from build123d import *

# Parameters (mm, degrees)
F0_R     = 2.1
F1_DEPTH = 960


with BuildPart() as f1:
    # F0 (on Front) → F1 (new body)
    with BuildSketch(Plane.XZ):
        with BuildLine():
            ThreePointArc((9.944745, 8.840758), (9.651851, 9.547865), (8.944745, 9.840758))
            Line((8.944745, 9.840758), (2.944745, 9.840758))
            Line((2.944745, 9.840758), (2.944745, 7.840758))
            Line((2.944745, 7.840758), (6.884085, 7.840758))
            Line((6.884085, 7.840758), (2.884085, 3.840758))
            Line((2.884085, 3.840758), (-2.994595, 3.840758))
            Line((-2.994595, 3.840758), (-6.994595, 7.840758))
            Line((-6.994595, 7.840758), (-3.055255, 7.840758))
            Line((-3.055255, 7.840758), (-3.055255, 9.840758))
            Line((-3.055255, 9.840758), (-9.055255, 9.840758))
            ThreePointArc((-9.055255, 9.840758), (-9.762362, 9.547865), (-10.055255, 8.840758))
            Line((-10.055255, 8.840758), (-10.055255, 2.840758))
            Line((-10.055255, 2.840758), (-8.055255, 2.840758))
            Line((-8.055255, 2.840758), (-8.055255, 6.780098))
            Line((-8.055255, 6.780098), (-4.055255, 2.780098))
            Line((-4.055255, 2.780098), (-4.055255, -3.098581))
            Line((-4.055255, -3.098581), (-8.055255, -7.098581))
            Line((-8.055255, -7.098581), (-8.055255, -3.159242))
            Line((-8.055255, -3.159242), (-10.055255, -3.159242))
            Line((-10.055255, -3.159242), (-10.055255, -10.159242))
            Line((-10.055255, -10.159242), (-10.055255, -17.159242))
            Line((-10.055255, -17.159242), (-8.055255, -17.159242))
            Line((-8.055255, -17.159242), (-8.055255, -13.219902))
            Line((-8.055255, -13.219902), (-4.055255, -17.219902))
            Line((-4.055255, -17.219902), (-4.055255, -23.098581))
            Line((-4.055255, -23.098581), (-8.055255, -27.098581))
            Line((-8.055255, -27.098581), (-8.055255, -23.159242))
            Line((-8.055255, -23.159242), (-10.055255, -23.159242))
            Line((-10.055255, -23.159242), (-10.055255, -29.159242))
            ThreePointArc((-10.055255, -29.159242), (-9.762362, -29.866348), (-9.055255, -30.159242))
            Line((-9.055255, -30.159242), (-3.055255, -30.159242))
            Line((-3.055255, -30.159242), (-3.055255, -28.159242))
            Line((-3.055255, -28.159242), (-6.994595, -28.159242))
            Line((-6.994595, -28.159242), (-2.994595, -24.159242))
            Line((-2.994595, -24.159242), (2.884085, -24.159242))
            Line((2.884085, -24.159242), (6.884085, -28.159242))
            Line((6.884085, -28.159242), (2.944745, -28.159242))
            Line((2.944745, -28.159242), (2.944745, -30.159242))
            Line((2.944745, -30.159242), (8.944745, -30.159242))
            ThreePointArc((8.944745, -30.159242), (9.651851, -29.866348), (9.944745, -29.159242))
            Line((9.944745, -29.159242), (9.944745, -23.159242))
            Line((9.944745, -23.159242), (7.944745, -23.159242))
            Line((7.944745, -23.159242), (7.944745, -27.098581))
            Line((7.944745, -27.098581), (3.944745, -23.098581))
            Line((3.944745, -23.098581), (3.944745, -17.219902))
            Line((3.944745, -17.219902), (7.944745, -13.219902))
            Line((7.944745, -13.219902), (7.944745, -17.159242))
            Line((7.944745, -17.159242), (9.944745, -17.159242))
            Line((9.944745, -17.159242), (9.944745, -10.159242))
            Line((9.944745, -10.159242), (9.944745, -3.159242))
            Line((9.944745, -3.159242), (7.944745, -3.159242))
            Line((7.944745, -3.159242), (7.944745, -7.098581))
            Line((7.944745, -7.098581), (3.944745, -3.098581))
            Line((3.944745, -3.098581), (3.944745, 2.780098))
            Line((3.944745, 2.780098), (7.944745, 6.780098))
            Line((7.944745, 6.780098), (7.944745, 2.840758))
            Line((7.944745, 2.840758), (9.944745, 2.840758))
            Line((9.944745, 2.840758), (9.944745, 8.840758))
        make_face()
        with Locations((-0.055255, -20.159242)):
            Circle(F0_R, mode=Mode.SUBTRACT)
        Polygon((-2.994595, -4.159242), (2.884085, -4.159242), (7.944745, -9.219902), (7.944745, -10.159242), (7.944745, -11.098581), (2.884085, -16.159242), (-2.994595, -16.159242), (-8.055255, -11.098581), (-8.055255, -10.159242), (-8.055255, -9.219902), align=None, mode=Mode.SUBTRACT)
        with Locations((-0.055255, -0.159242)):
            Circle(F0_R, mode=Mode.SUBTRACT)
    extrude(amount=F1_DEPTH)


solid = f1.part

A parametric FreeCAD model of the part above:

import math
import FreeCAD as App
import Part
import Sketcher

doc = App.newDocument("Part")
body = doc.addObject("PartDesign::Body", "Body")

sketch1 = body.newObject("Sketcher::SketchObject", "Sketch")
sketch1.AttachmentSupport = (doc.getObject("XZ_Plane"), [""])
sketch1.MapMode = "FlatFace"
sketch1.addGeometry(Part.ArcOfCircle(Part.Circle(App.Vector(8.944744, 8.840757, 0), App.Vector(0, 0, 1), 1.000001), math.radians(0.000055), math.radians(89.999945)), False)
sketch1.addGeometry(Part.LineSegment(App.Vector(8.944745, 9.840758, 0), App.Vector(2.944745, 9.840758, 0)), False)
sketch1.addGeometry(Part.LineSegment(App.Vector(2.944745, 9.840758, 0), App.Vector(2.944745, 7.840758, 0)), False)
sketch1.addGeometry(Part.LineSegment(App.Vector(2.944745, 7.840758, 0), App.Vector(6.884085, 7.840758, 0)), False)
sketch1.addGeometry(Part.LineSegment(App.Vector(6.884085, 7.840758, 0), App.Vector(2.884085, 3.840758, 0)), False)
sketch1.addGeometry(Part.LineSegment(App.Vector(2.884085, 3.840758, 0), App.Vector(-2.994595, 3.840758, 0)), False)
sketch1.addGeometry(Part.LineSegment(App.Vector(-2.994595, 3.840758, 0), App.Vector(-6.994595, 7.840758, 0)), False)
sketch1.addGeometry(Part.LineSegment(App.Vector(-6.994595, 7.840758, 0), App.Vector(-3.055255, 7.840758, 0)), False)
sketch1.addGeometry(Part.LineSegment(App.Vector(-3.055255, 7.840758, 0), App.Vector(-3.055255, 9.840758, 0)), False)
sketch1.addGeometry(Part.LineSegment(App.Vector(-3.055255, 9.840758, 0), App.Vector(-9.055255, 9.840758, 0)), False)
sketch1.addGeometry(Part.ArcOfCircle(Part.Circle(App.Vector(-9.055256, 8.840759, 0), App.Vector(0, 0, 1), 0.999999), math.radians(89.999957), math.radians(180.000043)), False)
sketch1.addGeometry(Part.LineSegment(App.Vector(-10.055255, 8.840758, 0), App.Vector(-10.055255, 2.840758, 0)), False)
sketch1.addGeometry(Part.LineSegment(App.Vector(-10.055255, 2.840758, 0), App.Vector(-8.055255, 2.840758, 0)), False)
sketch1.addGeometry(Part.LineSegment(App.Vector(-8.055255, 2.840758, 0), App.Vector(-8.055255, 6.780098, 0)), False)
sketch1.addGeometry(Part.LineSegment(App.Vector(-8.055255, 6.780098, 0), App.Vector(-4.055255, 2.780098, 0)), False)
sketch1.addGeometry(Part.LineSegment(App.Vector(-4.055255, 2.780098, 0), App.Vector(-4.055255, -3.098581, 0)), False)
sketch1.addGeometry(Part.LineSegment(App.Vector(-4.055255, -3.098581, 0), App.Vector(-8.055255, -7.098581, 0)), False)
sketch1.addGeometry(Part.LineSegment(App.Vector(-8.055255, -7.098581, 0), App.Vector(-8.055255, -3.159242, 0)), False)
sketch1.addGeometry(Part.LineSegment(App.Vector(-8.055255, -3.159242, 0), App.Vector(-10.055255, -3.159242, 0)), False)
sketch1.addGeometry(Part.LineSegment(App.Vector(-10.055255, -3.159242, 0), App.Vector(-10.055255, -17.159242, 0)), False)
sketch1.addGeometry(Part.LineSegment(App.Vector(-10.055255, -17.159242, 0), App.Vector(-8.055255, -17.159242, 0)), False)
sketch1.addGeometry(Part.LineSegment(App.Vector(-8.055255, -17.159242, 0), App.Vector(-8.055255, -13.219902, 0)), False)
sketch1.addGeometry(Part.LineSegment(App.Vector(-8.055255, -13.219902, 0), App.Vector(-4.055255, -17.219902, 0)), False)
sketch1.addGeometry(Part.LineSegment(App.Vector(-4.055255, -17.219902, 0), App.Vector(-4.055255, -23.098581, 0)), False)
sketch1.addGeometry(Part.LineSegment(App.Vector(-4.055255, -23.098581, 0), App.Vector(-8.055255, -27.098581, 0)), False)
sketch1.addGeometry(Part.LineSegment(App.Vector(-8.055255, -27.098581, 0), App.Vector(-8.055255, -23.159242, 0)), False)
sketch1.addGeometry(Part.LineSegment(App.Vector(-8.055255, -23.159242, 0), App.Vector(-10.055255, -23.159242, 0)), False)
sketch1.addGeometry(Part.LineSegment(App.Vector(-10.055255, -23.159242, 0), App.Vector(-10.055255, -29.159242, 0)), False)
sketch1.addGeometry(Part.ArcOfCircle(Part.Circle(App.Vector(-9.055254, -29.159241, 0), App.Vector(0, 0, 1), 1.000001), math.radians(-179.999945), math.radians(-90.000055)), False)
sketch1.addGeometry(Part.LineSegment(App.Vector(-9.055255, -30.159242, 0), App.Vector(-3.055255, -30.159242, 0)), False)
sketch1.addGeometry(Part.LineSegment(App.Vector(-3.055255, -30.159242, 0), App.Vector(-3.055255, -28.159242, 0)), False)
sketch1.addGeometry(Part.LineSegment(App.Vector(-3.055255, -28.159242, 0), App.Vector(-6.994595, -28.159242, 0)), False)
sketch1.addGeometry(Part.LineSegment(App.Vector(-6.994595, -28.159242, 0), App.Vector(-2.994595, -24.159242, 0)), False)
sketch1.addGeometry(Part.LineSegment(App.Vector(-2.994595, -24.159242, 0), App.Vector(2.884085, -24.159242, 0)), False)
sketch1.addGeometry(Part.LineSegment(App.Vector(2.884085, -24.159242, 0), App.Vector(6.884085, -28.159242, 0)), False)
sketch1.addGeometry(Part.LineSegment(App.Vector(6.884085, -28.159242, 0), App.Vector(2.944745, -28.159242, 0)), False)
sketch1.addGeometry(Part.LineSegment(App.Vector(2.944745, -28.159242, 0), App.Vector(2.944745, -30.159242, 0)), False)
sketch1.addGeometry(Part.LineSegment(App.Vector(2.944745, -30.159242, 0), App.Vector(8.944745, -30.159242, 0)), False)
sketch1.addGeometry(Part.ArcOfCircle(Part.Circle(App.Vector(8.944742, -29.159239, 0), App.Vector(0, 0, 1), 1.000003), math.radians(-89.999847), math.radians(-0.000153)), False)
sketch1.addGeometry(Part.LineSegment(App.Vector(9.944745, -29.159242, 0), App.Vector(9.944745, -23.159242, 0)), False)
sketch1.addGeometry(Part.LineSegment(App.Vector(9.944745, -23.159242, 0), App.Vector(7.944745, -23.159242, 0)), False)
sketch1.addGeometry(Part.LineSegment(App.Vector(7.944745, -23.159242, 0), App.Vector(7.944745, -27.098581, 0)), False)
sketch1.addGeometry(Part.LineSegment(App.Vector(7.944745, -27.098581, 0), App.Vector(3.944745, -23.098581, 0)), False)
sketch1.addGeometry(Part.LineSegment(App.Vector(3.944745, -23.098581, 0), App.Vector(3.944745, -17.219902, 0)), False)
sketch1.addGeometry(Part.LineSegment(App.Vector(3.944745, -17.219902, 0), App.Vector(7.944745, -13.219902, 0)), False)
sketch1.addGeometry(Part.LineSegment(App.Vector(7.944745, -13.219902, 0), App.Vector(7.944745, -17.159242, 0)), False)
sketch1.addGeometry(Part.LineSegment(App.Vector(7.944745, -17.159242, 0), App.Vector(9.944745, -17.159242, 0)), False)
sketch1.addGeometry(Part.LineSegment(App.Vector(9.944745, -17.159242, 0), App.Vector(9.944745, -3.159242, 0)), False)
sketch1.addGeometry(Part.LineSegment(App.Vector(9.944745, -3.159242, 0), App.Vector(7.944745, -3.159242, 0)), False)
sketch1.addGeometry(Part.LineSegment(App.Vector(7.944745, -3.159242, 0), App.Vector(7.944745, -7.098581, 0)), False)
sketch1.addGeometry(Part.LineSegment(App.Vector(7.944745, -7.098581, 0), App.Vector(3.944745, -3.098581, 0)), False)
sketch1.addGeometry(Part.LineSegment(App.Vector(3.944745, -3.098581, 0), App.Vector(3.944745, 2.780098, 0)), False)
sketch1.addGeometry(Part.LineSegment(App.Vector(3.944745, 2.780098, 0), App.Vector(7.944745, 6.780098, 0)), False)
sketch1.addGeometry(Part.LineSegment(App.Vector(7.944745, 6.780098, 0), App.Vector(7.944745, 2.840758, 0)), False)
sketch1.addGeometry(Part.LineSegment(App.Vector(7.944745, 2.840758, 0), App.Vector(9.944745, 2.840758, 0)), False)
sketch1.addGeometry(Part.LineSegment(App.Vector(9.944745, 2.840758, 0), App.Vector(9.944745, 8.840758, 0)), False)
sketch1.addGeometry(Part.Circle(App.Vector(-0.055255, -20.159242, 0), App.Vector(0, 0, 1), 2.1), False)
sketch1.addGeometry(Part.LineSegment(App.Vector(-8.055255, -9.219902, 0), App.Vector(-2.994595, -4.159242, 0)), False)
sketch1.addGeometry(Part.LineSegment(App.Vector(-2.994595, -4.159242, 0), App.Vector(2.884085, -4.159242, 0)), False)
sketch1.addGeometry(Part.LineSegment(App.Vector(2.884085, -4.159242, 0), App.Vector(7.944745, -9.219902, 0)), False)
sketch1.addGeometry(Part.LineSegment(App.Vector(7.944745, -9.219902, 0), App.Vector(7.944745, -11.098581, 0)), False)
sketch1.addGeometry(Part.LineSegment(App.Vector(7.944745, -11.098581, 0), App.Vector(2.884085, -16.159242, 0)), False)
sketch1.addGeometry(Part.LineSegment(App.Vector(2.884085, -16.159242, 0), App.Vector(-2.994595, -16.159242, 0)), False)
sketch1.addGeometry(Part.LineSegment(App.Vector(-2.994595, -16.159242, 0), App.Vector(-8.055255, -11.098581, 0)), False)
sketch1.addGeometry(Part.LineSegment(App.Vector(-8.055255, -11.098581, 0), App.Vector(-8.055255, -9.219902, 0)), False)
sketch1.addGeometry(Part.Circle(App.Vector(-0.055255, -0.159242, 0), App.Vector(0, 0, 1), 2.1), False)
sketch1.addConstraint(Sketcher.Constraint("Tangent", 0, 2, 1, 1))
sketch1.addConstraint(Sketcher.Constraint("Coincident", 1, 2, 2, 1))
sketch1.addConstraint(Sketcher.Constraint("Coincident", 2, 2, 3, 1))
sketch1.addConstraint(Sketcher.Constraint("Coincident", 3, 2, 4, 1))
sketch1.addConstraint(Sketcher.Constraint("Coincident", 4, 2, 5, 1))
sketch1.addConstraint(Sketcher.Constraint("Coincident", 5, 2, 6, 1))
sketch1.addConstraint(Sketcher.Constraint("Coincident", 6, 2, 7, 1))
sketch1.addConstraint(Sketcher.Constraint("Coincident", 7, 2, 8, 1))
sketch1.addConstraint(Sketcher.Constraint("Coincident", 8, 2, 9, 1))
sketch1.addConstraint(Sketcher.Constraint("Tangent", 9, 2, 10, 1))
sketch1.addConstraint(Sketcher.Constraint("Tangent", 10, 2, 11, 1))
sketch1.addConstraint(Sketcher.Constraint("Coincident", 11, 2, 12, 1))
sketch1.addConstraint(Sketcher.Constraint("Coincident", 12, 2, 13, 1))
sketch1.addConstraint(Sketcher.Constraint("Coincident", 13, 2, 14, 1))
sketch1.addConstraint(Sketcher.Constraint("Coincident", 14, 2, 15, 1))
sketch1.addConstraint(Sketcher.Constraint("Coincident", 15, 2, 16, 1))
sketch1.addConstraint(Sketcher.Constraint("Coincident", 16, 2, 17, 1))
sketch1.addConstraint(Sketcher.Constraint("Coincident", 17, 2, 18, 1))
sketch1.addConstraint(Sketcher.Constraint("Coincident", 18, 2, 19, 1))
sketch1.addConstraint(Sketcher.Constraint("Coincident", 19, 2, 20, 1))
sketch1.addConstraint(Sketcher.Constraint("Coincident", 20, 2, 21, 1))
sketch1.addConstraint(Sketcher.Constraint("Coincident", 21, 2, 22, 1))
sketch1.addConstraint(Sketcher.Constraint("Coincident", 22, 2, 23, 1))
sketch1.addConstraint(Sketcher.Constraint("Coincident", 23, 2, 24, 1))
sketch1.addConstraint(Sketcher.Constraint("Coincident", 24, 2, 25, 1))
sketch1.addConstraint(Sketcher.Constraint("Coincident", 25, 2, 26, 1))
sketch1.addConstraint(Sketcher.Constraint("Coincident", 26, 2, 27, 1))
sketch1.addConstraint(Sketcher.Constraint("Tangent", 27, 2, 28, 1))
sketch1.addConstraint(Sketcher.Constraint("Tangent", 28, 2, 29, 1))
sketch1.addConstraint(Sketcher.Constraint("Coincident", 29, 2, 30, 1))
sketch1.addConstraint(Sketcher.Constraint("Coincident", 30, 2, 31, 1))
sketch1.addConstraint(Sketcher.Constraint("Coincident", 31, 2, 32, 1))
sketch1.addConstraint(Sketcher.Constraint("Coincident", 32, 2, 33, 1))
sketch1.addConstraint(Sketcher.Constraint("Coincident", 33, 2, 34, 1))
sketch1.addConstraint(Sketcher.Constraint("Coincident", 34, 2, 35, 1))
sketch1.addConstraint(Sketcher.Constraint("Coincident", 35, 2, 36, 1))
sketch1.addConstraint(Sketcher.Constraint("Coincident", 36, 2, 37, 1))
sketch1.addConstraint(Sketcher.Constraint("Coincident", 37, 2, 38, 1))
sketch1.addConstraint(Sketcher.Constraint("Coincident", 38, 2, 39, 1))
sketch1.addConstraint(Sketcher.Constraint("Coincident", 39, 2, 40, 1))
sketch1.addConstraint(Sketcher.Constraint("Coincident", 40, 2, 41, 1))
sketch1.addConstraint(Sketcher.Constraint("Coincident", 41, 2, 42, 1))
sketch1.addConstraint(Sketcher.Constraint("Coincident", 42, 2, 43, 1))
sketch1.addConstraint(Sketcher.Constraint("Coincident", 43, 2, 44, 1))
sketch1.addConstraint(Sketcher.Constraint("Coincident", 44, 2, 45, 1))
sketch1.addConstraint(Sketcher.Constraint("Coincident", 45, 2, 46, 1))
sketch1.addConstraint(Sketcher.Constraint("Coincident", 46, 2, 47, 1))
sketch1.addConstraint(Sketcher.Constraint("Coincident", 47, 2, 48, 1))
sketch1.addConstraint(Sketcher.Constraint("Coincident", 48, 2, 49, 1))
sketch1.addConstraint(Sketcher.Constraint("Coincident", 49, 2, 50, 1))
sketch1.addConstraint(Sketcher.Constraint("Coincident", 50, 2, 51, 1))
sketch1.addConstraint(Sketcher.Constraint("Coincident", 51, 2, 52, 1))
sketch1.addConstraint(Sketcher.Constraint("Coincident", 52, 2, 53, 1))
sketch1.addConstraint(Sketcher.Constraint("Coincident", 53, 2, 54, 1))
sketch1.addConstraint(Sketcher.Constraint("Coincident", 54, 2, 55, 1))
sketch1.addConstraint(Sketcher.Constraint("Tangent", 55, 2, 0, 1))
sketch1.addConstraint(Sketcher.Constraint("Coincident", 57, 2, 58, 1))
sketch1.addConstraint(Sketcher.Constraint("Coincident", 58, 2, 59, 1))
sketch1.addConstraint(Sketcher.Constraint("Coincident", 59, 2, 60, 1))
sketch1.addConstraint(Sketcher.Constraint("Coincident", 60, 2, 61, 1))
sketch1.addConstraint(Sketcher.Constraint("Coincident", 61, 2, 62, 1))
sketch1.addConstraint(Sketcher.Constraint("Coincident", 62, 2, 63, 1))
sketch1.addConstraint(Sketcher.Constraint("Coincident", 63, 2, 64, 1))
sketch1.addConstraint(Sketcher.Constraint("Coincident", 64, 2, 57, 1))
sketch1.addConstraint(Sketcher.Constraint("Horizontal", 1))
sketch1.addConstraint(Sketcher.Constraint("Vertical", 2))
sketch1.addConstraint(Sketcher.Constraint("Horizontal", 3))
sketch1.addConstraint(Sketcher.Constraint("Horizontal", 5))
sketch1.addConstraint(Sketcher.Constraint("Horizontal", 7))
sketch1.addConstraint(Sketcher.Constraint("Vertical", 8))
sketch1.addConstraint(Sketcher.Constraint("Horizontal", 9))
sketch1.addConstraint(Sketcher.Constraint("Vertical", 11))
sketch1.addConstraint(Sketcher.Constraint("Horizontal", 12))
sketch1.addConstraint(Sketcher.Constraint("Vertical", 13))
sketch1.addConstraint(Sketcher.Constraint("Vertical", 15))
sketch1.addConstraint(Sketcher.Constraint("Vertical", 17))
sketch1.addConstraint(Sketcher.Constraint("Horizontal", 18))
sketch1.addConstraint(Sketcher.Constraint("Vertical", 19))
sketch1.addConstraint(Sketcher.Constraint("Horizontal", 20))
sketch1.addConstraint(Sketcher.Constraint("Vertical", 21))
sketch1.addConstraint(Sketcher.Constraint("Vertical", 23))
sketch1.addConstraint(Sketcher.Constraint("Vertical", 25))
sketch1.addConstraint(Sketcher.Constraint("Horizontal", 26))
sketch1.addConstraint(Sketcher.Constraint("Vertical", 27))
sketch1.addConstraint(Sketcher.Constraint("Horizontal", 29))
sketch1.addConstraint(Sketcher.Constraint("Vertical", 30))
sketch1.addConstraint(Sketcher.Constraint("Horizontal", 31))
sketch1.addConstraint(Sketcher.Constraint("Horizontal", 33))
sketch1.addConstraint(Sketcher.Constraint("Horizontal", 35))
sketch1.addConstraint(Sketcher.Constraint("Vertical", 36))
sketch1.addConstraint(Sketcher.Constraint("Horizontal", 37))
sketch1.addConstraint(Sketcher.Constraint("Vertical", 39))
sketch1.addConstraint(Sketcher.Constraint("Horizontal", 40))
sketch1.addConstraint(Sketcher.Constraint("Vertical", 41))
sketch1.addConstraint(Sketcher.Constraint("Vertical", 43))
sketch1.addConstraint(Sketcher.Constraint("Vertical", 45))
sketch1.addConstraint(Sketcher.Constraint("Horizontal", 46))
sketch1.addConstraint(Sketcher.Constraint("Vertical", 47))
sketch1.addConstraint(Sketcher.Constraint("Horizontal", 48))
sketch1.addConstraint(Sketcher.Constraint("Vertical", 49))
sketch1.addConstraint(Sketcher.Constraint("Vertical", 51))
sketch1.addConstraint(Sketcher.Constraint("Vertical", 53))
sketch1.addConstraint(Sketcher.Constraint("Horizontal", 54))
sketch1.addConstraint(Sketcher.Constraint("Vertical", 55))
sketch1.addConstraint(Sketcher.Constraint("Horizontal", 58))
sketch1.addConstraint(Sketcher.Constraint("Vertical", 60))
sketch1.addConstraint(Sketcher.Constraint("Horizontal", 62))
sketch1.addConstraint(Sketcher.Constraint("Vertical", 64))
sketch1.addConstraint(Sketcher.Constraint("Equal", 0, 10))
sketch1.addConstraint(Sketcher.Constraint("Equal", 10, 28))
sketch1.addConstraint(Sketcher.Constraint("Equal", 28, 38))
sketch1.addConstraint(Sketcher.Constraint("Equal", 56, 65))
sketch1.addConstraint(Sketcher.Constraint("Perpendicular", 4, 6))
sketch1.addConstraint(Sketcher.Constraint("Parallel", 6, 14))
sketch1.addConstraint(Sketcher.Constraint("Perpendicular", 14, 16))
sketch1.addConstraint(Sketcher.Constraint("Perpendicular", 16, 22))
sketch1.addConstraint(Sketcher.Constraint("Perpendicular", 22, 24))
sketch1.addConstraint(Sketcher.Constraint("Parallel", 24, 32))
sketch1.addConstraint(Sketcher.Constraint("Perpendicular", 32, 34))
sketch1.addConstraint(Sketcher.Constraint("Parallel", 34, 42))
sketch1.addConstraint(Sketcher.Constraint("Perpendicular", 42, 44))
sketch1.addConstraint(Sketcher.Constraint("Perpendicular", 44, 50))
sketch1.addConstraint(Sketcher.Constraint("Perpendicular", 50, 52))
sketch1.addConstraint(Sketcher.Constraint("Parallel", 52, 57))
sketch1.addConstraint(Sketcher.Constraint("Perpendicular", 57, 59))
sketch1.addConstraint(Sketcher.Constraint("Perpendicular", 59, 61))
sketch1.addConstraint(Sketcher.Constraint("Perpendicular", 61, 63))
sketch1.addConstraint(Sketcher.Constraint("Horizontal", 0, 3, 10, 3))
sketch1.addConstraint(Sketcher.Constraint("Horizontal", 28, 3, 38, 3))
sketch1.addConstraint(Sketcher.Constraint("Horizontal", 3, 2, 6, 2))
sketch1.addConstraint(Sketcher.Constraint("Horizontal", 31, 2, 34, 2))
sketch1.addConstraint(Sketcher.Constraint("Horizontal", 27, 2, 38, 2))
sketch1.addConstraint(Sketcher.Constraint("Horizontal", 26, 2, 39, 2))
sketch1.addConstraint(Sketcher.Constraint("Horizontal", 24, 2, 41, 2))
sketch1.addConstraint(Sketcher.Constraint("Horizontal", 23, 2, 42, 2))
sketch1.addConstraint(Sketcher.Constraint("Horizontal", 22, 2, 43, 2))
sketch1.addConstraint(Sketcher.Constraint("Horizontal", 21, 2, 44, 2))
sketch1.addConstraint(Sketcher.Constraint("Horizontal", 20, 2, 45, 2))
sketch1.addConstraint(Sketcher.Constraint("Horizontal", 18, 2, 47, 2))
sketch1.addConstraint(Sketcher.Constraint("Horizontal", 16, 2, 49, 2))
sketch1.addConstraint(Sketcher.Constraint("Horizontal", 15, 2, 50, 2))
sketch1.addConstraint(Sketcher.Constraint("Horizontal", 14, 2, 51, 2))
sketch1.addConstraint(Sketcher.Constraint("Horizontal", 13, 2, 52, 2))
sketch1.addConstraint(Sketcher.Constraint("Horizontal", 12, 2, 53, 2))
sketch1.addConstraint(Sketcher.Constraint("Horizontal", 60, 2, 63, 2))
sketch1.addConstraint(Sketcher.Constraint("Horizontal", 59, 2, 64, 2))
sketch1.addConstraint(Sketcher.Constraint("Vertical", 10, 3, 28, 3))
sketch1.addConstraint(Sketcher.Constraint("Vertical", 0, 3, 38, 3))
sketch1.addConstraint(Sketcher.Constraint("Vertical", 56, 3, 65, 3))
sketch1.addConstraint(Sketcher.Constraint("Vertical", 13, 2, 16, 2))
sketch1.addConstraint(Sketcher.Constraint("Vertical", 11, 2, 18, 2))
sketch1.addConstraint(Sketcher.Constraint("Vertical", 17, 2, 20, 2))
sketch1.addConstraint(Sketcher.Constraint("Vertical", 15, 2, 22, 2))
sketch1.addConstraint(Sketcher.Constraint("Vertical", 21, 2, 24, 2))
sketch1.addConstraint(Sketcher.Constraint("Vertical", 8, 2, 29, 2))
sketch1.addConstraint(Sketcher.Constraint("Vertical", 6, 2, 31, 2))
sketch1.addConstraint(Sketcher.Constraint("Vertical", 5, 2, 32, 2))
sketch1.addConstraint(Sketcher.Constraint("Vertical", 4, 2, 33, 2))
sketch1.addConstraint(Sketcher.Constraint("Vertical", 3, 2, 34, 2))
sketch1.addConstraint(Sketcher.Constraint("Vertical", 2, 2, 35, 2))
sketch1.addConstraint(Sketcher.Constraint("Vertical", 0, 2, 37, 2))
sketch1.addConstraint(Sketcher.Constraint("Vertical", 39, 2, 46, 2))
sketch1.addConstraint(Sketcher.Constraint("Vertical", 45, 2, 48, 2))
sketch1.addConstraint(Sketcher.Constraint("Vertical", 32, 2, 57, 2))
sketch1.addConstraint(Sketcher.Constraint("Vertical", 33, 2, 58, 2))
sketch1.addConstraint(Sketcher.Constraint("Vertical", 53, 2, 59, 2))
sketch1.addConstraint(Sketcher.Constraint("Vertical", 58, 2, 61, 2))
sketch1.addConstraint(Sketcher.Constraint("Vertical", 25, 2, 63, 2))
sketch1.addConstraint(Sketcher.Constraint("Equal", 3, 7))
sketch1.addConstraint(Sketcher.Constraint("Equal", 1, 9))
sketch1.addConstraint(Sketcher.Constraint("Equal", 54, 2))
sketch1.addConstraint(Sketcher.Constraint("Equal", 37, 11))
sketch1.addConstraint(Sketcher.Constraint("Equal", 35, 13))
sketch1.addConstraint(Sketcher.Constraint("Equal", 62, 15))
sketch1.addConstraint(Sketcher.Constraint("Equal", 13, 17))
sketch1.addConstraint(Sketcher.Constraint("Equal", 17, 21))
sketch1.addConstraint(Sketcher.Constraint("Equal", 15, 23))
sketch1.addConstraint(Sketcher.Constraint("Equal", 21, 25))
sketch1.addConstraint(Sketcher.Constraint("Equal", 11, 27))
sketch1.addConstraint(Sketcher.Constraint("Equal", 8, 30))
sketch1.addConstraint(Sketcher.Constraint("Equal", 6, 14))
sketch1.addConstraint(Sketcher.Constraint("Radius", 0, 1.000001))
sketch1.addConstraint(Sketcher.Constraint("Diameter", 56, 4.2))
sketch1.addConstraint(Sketcher.Constraint("DistanceX", 1, 2, 1, 1, 6.0))
sketch1.addConstraint(Sketcher.Constraint("DistanceX", 12, 1, 12, 2, 2.0))
sketch1.addConstraint(Sketcher.Constraint("DistanceY", 19, 2, 19, 1, 14.0))
sketch1.addConstraint(Sketcher.Constraint("DistanceX", 3, 1, 3, 2, 3.93934))
sketch1.addConstraint(Sketcher.Constraint("DistanceX", 5, 2, 5, 1, 5.87868))
sketch1.addConstraint(Sketcher.Constraint("DistanceY", 60, 2, 60, 1, 1.878679))
sketch1.addConstraint(Sketcher.Constraint("DistanceY", -1, 1, 14, 2, 2.780098))
sketch1.addConstraint(Sketcher.Constraint("DistanceY", 21, 2, -1, 1, 13.219902))
sketch1.addConstraint(Sketcher.Constraint("DistanceY", 59, 2, -1, 1, 9.219902))
sketch1.addConstraint(Sketcher.Constraint("DistanceY", 56, 3, -1, 1, 20.159242))
sketch1.addConstraint(Sketcher.Constraint("DistanceX", -1, 1, 0, 3, 8.944744))
sketch1.addConstraint(Sketcher.Constraint("DistanceX", 56, 3, -1, 1, 0.055255))
sketch1.addConstraint(Sketcher.Constraint("DistanceY", 65, 3, -1, 1, 0.159242))
pad1 = body.newObject("PartDesign::Pad", "Pad")
pad1.Profile = sketch1
pad1.Length = 960

doc.recompute()
